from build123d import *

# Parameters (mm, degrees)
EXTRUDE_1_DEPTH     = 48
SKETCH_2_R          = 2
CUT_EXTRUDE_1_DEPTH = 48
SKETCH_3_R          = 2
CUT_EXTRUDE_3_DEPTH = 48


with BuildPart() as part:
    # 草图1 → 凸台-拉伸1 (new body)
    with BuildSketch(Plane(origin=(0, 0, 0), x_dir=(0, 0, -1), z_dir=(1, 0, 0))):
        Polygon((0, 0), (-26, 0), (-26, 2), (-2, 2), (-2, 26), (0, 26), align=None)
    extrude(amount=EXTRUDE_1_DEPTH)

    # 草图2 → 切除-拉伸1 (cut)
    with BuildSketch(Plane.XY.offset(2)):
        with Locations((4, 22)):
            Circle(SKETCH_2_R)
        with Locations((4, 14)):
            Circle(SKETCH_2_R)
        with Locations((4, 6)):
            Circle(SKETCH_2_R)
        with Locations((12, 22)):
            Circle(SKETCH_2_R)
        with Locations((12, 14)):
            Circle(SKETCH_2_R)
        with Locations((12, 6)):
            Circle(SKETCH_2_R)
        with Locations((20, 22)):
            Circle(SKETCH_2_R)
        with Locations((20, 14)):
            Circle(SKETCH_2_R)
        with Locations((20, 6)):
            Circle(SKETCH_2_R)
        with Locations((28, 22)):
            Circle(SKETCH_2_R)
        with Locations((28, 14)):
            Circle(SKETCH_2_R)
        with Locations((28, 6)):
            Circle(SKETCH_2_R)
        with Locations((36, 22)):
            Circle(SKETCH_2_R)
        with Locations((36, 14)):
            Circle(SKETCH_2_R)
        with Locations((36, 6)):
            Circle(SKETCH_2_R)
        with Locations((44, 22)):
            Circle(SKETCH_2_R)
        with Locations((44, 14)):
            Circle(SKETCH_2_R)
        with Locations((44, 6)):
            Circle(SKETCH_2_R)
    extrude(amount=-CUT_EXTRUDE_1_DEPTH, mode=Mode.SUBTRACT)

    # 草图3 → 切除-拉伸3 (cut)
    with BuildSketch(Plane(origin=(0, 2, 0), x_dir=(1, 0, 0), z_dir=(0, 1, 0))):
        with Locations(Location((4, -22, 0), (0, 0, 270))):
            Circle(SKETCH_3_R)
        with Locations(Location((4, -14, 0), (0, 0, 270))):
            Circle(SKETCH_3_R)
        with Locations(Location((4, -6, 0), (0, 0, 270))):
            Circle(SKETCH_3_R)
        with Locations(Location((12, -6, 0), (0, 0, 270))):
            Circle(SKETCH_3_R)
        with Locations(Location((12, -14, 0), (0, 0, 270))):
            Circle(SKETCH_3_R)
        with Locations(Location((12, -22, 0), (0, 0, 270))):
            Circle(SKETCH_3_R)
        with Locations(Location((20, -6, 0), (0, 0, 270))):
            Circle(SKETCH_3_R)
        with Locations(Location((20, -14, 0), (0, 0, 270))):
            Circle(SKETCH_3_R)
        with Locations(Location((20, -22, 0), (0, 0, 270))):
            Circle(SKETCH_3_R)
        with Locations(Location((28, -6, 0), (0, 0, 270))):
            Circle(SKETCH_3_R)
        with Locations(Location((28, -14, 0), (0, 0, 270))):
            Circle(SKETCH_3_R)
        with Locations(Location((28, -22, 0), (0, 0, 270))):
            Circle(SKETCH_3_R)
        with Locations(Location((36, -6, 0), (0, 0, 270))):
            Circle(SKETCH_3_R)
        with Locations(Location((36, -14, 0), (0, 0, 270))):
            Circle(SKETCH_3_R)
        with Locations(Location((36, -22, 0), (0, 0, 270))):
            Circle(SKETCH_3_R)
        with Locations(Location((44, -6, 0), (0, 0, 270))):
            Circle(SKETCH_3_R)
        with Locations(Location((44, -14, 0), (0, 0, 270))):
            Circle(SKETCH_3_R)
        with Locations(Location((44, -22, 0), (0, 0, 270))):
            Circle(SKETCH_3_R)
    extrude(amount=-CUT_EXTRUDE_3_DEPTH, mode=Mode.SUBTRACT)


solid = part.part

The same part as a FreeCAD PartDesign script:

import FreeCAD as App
import Part
import Sketcher

doc = App.newDocument("Part")
body = doc.addObject("PartDesign::Body", "Body")

# Sketch on YZ plane
sketch1 = body.newObject("Sketcher::SketchObject", "Sketch")
sketch1.AttachmentSupport = (doc.getObject("YZ_Plane"), [""])
sketch1.MapMode = "FlatFace"
sketch1.addGeometry(Part.LineSegment(App.Vector(0, 26, 0), App.Vector(0, 0, 0)), False)
sketch1.addGeometry(Part.LineSegment(App.Vector(0, 0, 0), App.Vector(26, 0, 0)), False)
sketch1.addGeometry(Part.LineSegment(App.Vector(26, 0, 0), App.Vector(26, 2, 0)), False)
sketch1.addGeometry(Part.LineSegment(App.Vector(26, 2, 0), App.Vector(2, 2, 0)), False)
sketch1.addGeometry(Part.LineSegment(App.Vector(2, 2, 0), App.Vector(2, 26, 0)), False)
sketch1.addGeometry(Part.LineSegment(App.Vector(2, 26, 0), App.Vector(0, 26, 0)), False)
sketch1.addConstraint(Sketcher.Constraint("Coincident", 0, 2, 1, 1))
sketch1.addConstraint(Sketcher.Constraint("Coincident", 1, 2, 2, 1))
sketch1.addConstraint(Sketcher.Constraint("Coincident", 2, 2, 3, 1))
sketch1.addConstraint(Sketcher.Constraint("Coincident", 3, 2, 4, 1))
sketch1.addConstraint(Sketcher.Constraint("Coincident", 4, 2, 5, 1))
sketch1.addConstraint(Sketcher.Constraint("Coincident", 5, 2, 0, 1))
sketch1.addConstraint(Sketcher.Constraint("Vertical", 0))
sketch1.addConstraint(Sketcher.Constraint("Horizontal", 1))
sketch1.addConstraint(Sketcher.Constraint("Vertical", 2))
sketch1.addConstraint(Sketcher.Constraint("Horizontal", 3))
sketch1.addConstraint(Sketcher.Constraint("Vertical", 4))
sketch1.addConstraint(Sketcher.Constraint("Horizontal", 5))
sketch1.addConstraint(Sketcher.Constraint("Coincident", 0, 2, -1, 1))
sketch1.addConstraint(Sketcher.Constraint("Equal", 1, 0))
sketch1.addConstraint(Sketcher.Constraint("Equal", 5, 2))
sketch1.addConstraint(Sketcher.Constraint("DistanceX", 1, 1, 1, 2, 26.0))
sketch1.addConstraint(Sketcher.Constraint("DistanceX", 3, 2, 3, 1, 24.0))
pad1 = body.newObject("PartDesign::Pad", "Pad")
pad1.Profile = sketch1
pad1.Length = 48

# Sketch on XY plane
sketch2 = body.newObject("Sketcher::SketchObject", "Sketch001")
sketch2.AttachmentSupport = (doc.getObject("XY_Plane"), [""])
sketch2.MapMode = "FlatFace"
sketch2.AttachmentOffset = App.Placement(App.Vector(0, 0, 2), App.Rotation())
sketch2.addGeometry(Part.Circle(App.Vector(4, 22, 0), App.Vector(0, 0, 1), 2), False)
sketch2.addGeometry(Part.Circle(App.Vector(4, 14, 0), App.Vector(0, 0, 1), 2), False)
sketch2.addGeometry(Part.Circle(App.Vector(4, 6, 0), App.Vector(0, 0, 1), 2), False)
sketch2.addGeometry(Part.Circle(App.Vector(12, 22, 0), App.Vector(0, 0, 1), 2), False)
sketch2.addGeometry(Part.Circle(App.Vector(12, 14, 0), App.Vector(0, 0, 1), 2), False)
sketch2.addGeometry(Part.Circle(App.Vector(12, 6, 0), App.Vector(0, 0, 1), 2), False)
sketch2.addGeometry(Part.Circle(App.Vector(20, 22, 0), App.Vector(0, 0, 1), 2), False)
sketch2.addGeometry(Part.Circle(App.Vector(20, 14, 0), App.Vector(0, 0, 1), 2), False)
sketch2.addGeometry(Part.Circle(App.Vector(20, 6, 0), App.Vector(0, 0, 1), 2), False)
sketch2.addGeometry(Part.Circle(App.Vector(28, 22, 0), App.Vector(0, 0, 1), 2), False)
sketch2.addGeometry(Part.Circle(App.Vector(28, 14, 0), App.Vector(0, 0, 1), 2), False)
sketch2.addGeometry(Part.Circle(App.Vector(28, 6, 0), App.Vector(0, 0, 1), 2), False)
sketch2.addGeometry(Part.Circle(App.Vector(36, 22, 0), App.Vector(0, 0, 1), 2), False)
sketch2.addGeometry(Part.Circle(App.Vector(36, 14, 0), App.Vector(0, 0, 1), 2), False)
sketch2.addGeometry(Part.Circle(App.Vector(36, 6, 0), App.Vector(0, 0, 1), 2), False)
sketch2.addGeometry(Part.Circle(App.Vector(44, 22, 0), App.Vector(0, 0, 1), 2), False)
sketch2.addGeometry(Part.Circle(App.Vector(44, 14, 0), App.Vector(0, 0, 1), 2), False)
sketch2.addGeometry(Part.Circle(App.Vector(44, 6, 0), App.Vector(0, 0, 1), 2), False)
sketch2.addConstraint(Sketcher.Constraint("Equal", 0, 1))
sketch2.addConstraint(Sketcher.Constraint("Equal", 1, 2))
sketch2.addConstraint(Sketcher.Constraint("Equal", 2, 3))
sketch2.addConstraint(Sketcher.Constraint("Equal", 3, 4))
sketch2.addConstraint(Sketcher.Constraint("Equal", 4, 5))
sketch2.addConstraint(Sketcher.Constraint("Equal", 5, 6))
sketch2.addConstraint(Sketcher.Constraint("Equal", 6, 7))
sketch2.addConstraint(Sketcher.Constraint("Equal", 7, 8))
sketch2.addConstraint(Sketcher.Constraint("Equal", 8, 9))
sketch2.addConstraint(Sketcher.Constraint("Equal", 9, 10))
sketch2.addConstraint(Sketcher.Constraint("Equal", 10, 11))
sketch2.addConstraint(Sketcher.Constraint("Equal", 11, 12))
sketch2.addConstraint(Sketcher.Constraint("Equal", 12, 13))
sketch2.addConstraint(Sketcher.Constraint("Equal", 13, 14))
sketch2.addConstraint(Sketcher.Constraint("Equal", 14, 15))
sketch2.addConstraint(Sketcher.Constraint("Equal", 15, 16))
sketch2.addConstraint(Sketcher.Constraint("Equal", 16, 17))
sketch2.addConstraint(Sketcher.Constraint("Horizontal", 0, 3, 3, 3))
sketch2.addConstraint(Sketcher.Constraint("Horizontal", 1, 3, 4, 3))
sketch2.addConstraint(Sketcher.Constraint("Horizontal", 2, 3, 5, 3))
sketch2.addConstraint(Sketcher.Constraint("Horizontal", 3, 3, 6, 3))
sketch2.addConstraint(Sketcher.Constraint("Horizontal", 4, 3, 7, 3))
sketch2.addConstraint(Sketcher.Constraint("Horizontal", 5, 3, 8, 3))
sketch2.addConstraint(Sketcher.Constraint("Horizontal", 6, 3, 9, 3))
sketch2.addConstraint(Sketcher.Constraint("Horizontal", 7, 3, 10, 3))
sketch2.addConstraint(Sketcher.Constraint("Horizontal", 8, 3, 11, 3))
sketch2.addConstraint(Sketcher.Constraint("Horizontal", 9, 3, 12, 3))
sketch2.addConstraint(Sketcher.Constraint("Horizontal", 10, 3, 13, 3))
sketch2.addConstraint(Sketcher.Constraint("Horizontal", 11, 3, 14, 3))
sketch2.addConstraint(Sketcher.Constraint("Horizontal", 12, 3, 15, 3))
sketch2.addConstraint(Sketcher.Constraint("Horizontal", 13, 3, 16, 3))
sketch2.addConstraint(Sketcher.Constraint("Horizontal", 14, 3, 17, 3))
sketch2.addConstraint(Sketcher.Constraint("Vertical", 0, 3, 1, 3))
sketch2.addConstraint(Sketcher.Constraint("Vertical", 1, 3, 2, 3))
sketch2.addConstraint(Sketcher.Constraint("Vertical", 3, 3, 4, 3))
sketch2.addConstraint(Sketcher.Constraint("Vertical", 4, 3, 5, 3))
sketch2.addConstraint(Sketcher.Constraint("Vertical", 6, 3, 7, 3))
sketch2.addConstraint(Sketcher.Constraint("Vertical", 7, 3, 8, 3))
sketch2.addConstraint(Sketcher.Constraint("Vertical", 9, 3, 10, 3))
sketch2.addConstraint(Sketcher.Constraint("Vertical", 10, 3, 11, 3))
sketch2.addConstraint(Sketcher.Constraint("Vertical", 12, 3, 13, 3))
sketch2.addConstraint(Sketcher.Constraint("Vertical", 13, 3, 14, 3))
sketch2.addConstraint(Sketcher.Constraint("Vertical", 15, 3, 16, 3))
sketch2.addConstraint(Sketcher.Constraint("Vertical", 16, 3, 17, 3))
sketch2.addConstraint(Sketcher.Constraint("Diameter", 0, 4.0))
sketch2.addConstraint(Sketcher.Constraint("DistanceX", -1, 1, 0, 3, 4.0))
sketch2.addConstraint(Sketcher.Constraint("DistanceY", -1, 1, 0, 3, 22.0))
sketch2.addConstraint(Sketcher.Constraint("DistanceY", -1, 1, 1, 3, 14.0))
sketch2.addConstraint(Sketcher.Constraint("DistanceY", -1, 1, 2, 3, 6.0))
sketch2.addConstraint(Sketcher.Constraint("DistanceX", -1, 1, 3, 3, 12.0))
sketch2.addConstraint(Sketcher.Constraint("DistanceX", -1, 1, 6, 3, 20.0))
sketch2.addConstraint(Sketcher.Constraint("DistanceX", -1, 1, 9, 3, 28.0))
sketch2.addConstraint(Sketcher.Constraint("DistanceX", -1, 1, 12, 3, 36.0))
sketch2.addConstraint(Sketcher.Constraint("DistanceX", -1, 1, 15, 3, 44.0))
pocket1 = body.newObject("PartDesign::Pocket", "Pocket")
pocket1.Profile = sketch2
pocket1.Length = 48

# Sketch on XZ plane
sketch3 = body.newObject("Sketcher::SketchObject", "Sketch002")
sketch3.AttachmentSupport = (doc.getObject("XZ_Plane"), [""])
sketch3.MapMode = "FlatFace"
sketch3.AttachmentOffset = App.Placement(App.Vector(0, 0, -2), App.Rotation())
sketch3.addGeometry(Part.Circle(App.Vector(4, 22, 0), App.Vector(0, 0, 1), 2), False)
sketch3.addGeometry(Part.Circle(App.Vector(4, 14, 0), App.Vector(0, 0, 1), 2), False)
sketch3.addGeometry(Part.Circle(App.Vector(4, 6, 0), App.Vector(0, 0, 1), 2), False)
sketch3.addGeometry(Part.Circle(App.Vector(12, 6, 0), App.Vector(0, 0, 1), 2), False)
sketch3.addGeometry(Part.Circle(App.Vector(12, 14, 0), App.Vector(0, 0, 1), 2), False)
sketch3.addGeometry(Part.Circle(App.Vector(12, 22, 0), App.Vector(0, 0, 1), 2), False)
sketch3.addGeometry(Part.Circle(App.Vector(20, 6, 0), App.Vector(0, 0, 1), 2), False)
sketch3.addGeometry(Part.Circle(App.Vector(20, 14, 0), App.Vector(0, 0, 1), 2), False)
sketch3.addGeometry(Part.Circle(App.Vector(20, 22, 0), App.Vector(0, 0, 1), 2), False)
sketch3.addGeometry(Part.Circle(App.Vector(28, 6, 0), App.Vector(0, 0, 1), 2), False)
sketch3.addGeometry(Part.Circle(App.Vector(28, 14, 0), App.Vector(0, 0, 1), 2), False)
sketch3.addGeometry(Part.Circle(App.Vector(28, 22, 0), App.Vector(0, 0, 1), 2), False)
sketch3.addGeometry(Part.Circle(App.Vector(36, 6, 0), App.Vector(0, 0, 1), 2), False)
sketch3.addGeometry(Part.Circle(App.Vector(36, 14, 0), App.Vector(0, 0, 1), 2), False)
sketch3.addGeometry(Part.Circle(App.Vector(36, 22, 0), App.Vector(0, 0, 1), 2), False)
sketch3.addGeometry(Part.Circle(App.Vector(44, 6, 0), App.Vector(0, 0, 1), 2), False)
sketch3.addGeometry(Part.Circle(App.Vector(44, 14, 0), App.Vector(0, 0, 1), 2), False)
sketch3.addGeometry(Part.Circle(App.Vector(44, 22, 0), App.Vector(0, 0, 1), 2), False)
sketch3.addConstraint(Sketcher.Constraint("Equal", 0, 1))
sketch3.addConstraint(Sketcher.Constraint("Equal", 1, 2))
sketch3.addConstraint(Sketcher.Constraint("Equal", 2, 3))
sketch3.addConstraint(Sketcher.Constraint("Equal", 3, 4))
sketch3.addConstraint(Sketcher.Constraint("Equal", 4, 5))
sketch3.addConstraint(Sketcher.Constraint("Equal", 5, 6))
sketch3.addConstraint(Sketcher.Constraint("Equal", 6, 7))
sketch3.addConstraint(Sketcher.Constraint("Equal", 7, 8))
sketch3.addConstraint(Sketcher.Constraint("Equal", 8, 9))
sketch3.addConstraint(Sketcher.Constraint("Equal", 9, 10))
sketch3.addConstraint(Sketcher.Constraint("Equal", 10, 11))
sketch3.addConstraint(Sketcher.Constraint("Equal", 11, 12))
sketch3.addConstraint(Sketcher.Constraint("Equal", 12, 13))
sketch3.addConstraint(Sketcher.Constraint("Equal", 13, 14))
sketch3.addConstraint(Sketcher.Constraint("Equal", 14, 15))
sketch3.addConstraint(Sketcher.Constraint("Equal", 15, 16))
sketch3.addConstraint(Sketcher.Constraint("Equal", 16, 17))
sketch3.addConstraint(Sketcher.Constraint("Horizontal", 2, 3, 3, 3))
sketch3.addConstraint(Sketcher.Constraint("Horizontal", 1, 3, 4, 3))
sketch3.addConstraint(Sketcher.Constraint("Horizontal", 0, 3, 5, 3))
sketch3.addConstraint(Sketcher.Constraint("Horizontal", 3, 3, 6, 3))
sketch3.addConstraint(Sketcher.Constraint("Horizontal", 4, 3, 7, 3))
sketch3.addConstraint(Sketcher.Constraint("Horizontal", 5, 3, 8, 3))
sketch3.addConstraint(Sketcher.Constraint("Horizontal", 6, 3, 9, 3))
sketch3.addConstraint(Sketcher.Constraint("Horizontal", 7, 3, 10, 3))
sketch3.addConstraint(Sketcher.Constraint("Horizontal", 8, 3, 11, 3))
sketch3.addConstraint(Sketcher.Constraint("Horizontal", 9, 3, 12, 3))
sketch3.addConstraint(Sketcher.Constraint("Horizontal", 10, 3, 13, 3))
sketch3.addConstraint(Sketcher.Constraint("Horizontal", 11, 3, 14, 3))
sketch3.addConstraint(Sketcher.Constraint("Horizontal", 12, 3, 15, 3))
sketch3.addConstraint(Sketcher.Constraint("Horizontal", 13, 3, 16, 3))
sketch3.addConstraint(Sketcher.Constraint("Horizontal", 14, 3, 17, 3))
sketch3.addConstraint(Sketcher.Constraint("Vertical", 0, 3, 1, 3))
sketch3.addConstraint(Sketcher.Constraint("Vertical", 1, 3, 2, 3))
sketch3.addConstraint(Sketcher.Constraint("Vertical", 3, 3, 4, 3))
sketch3.addConstraint(Sketcher.Constraint("Vertical", 4, 3, 5, 3))
sketch3.addConstraint(Sketcher.Constraint("Vertical", 6, 3, 7, 3))
sketch3.addConstraint(Sketcher.Constraint("Vertical", 7, 3, 8, 3))
sketch3.addConstraint(Sketcher.Constraint("Vertical", 9, 3, 10, 3))
sketch3.addConstraint(Sketcher.Constraint("Vertical", 10, 3, 11, 3))
sketch3.addConstraint(Sketcher.Constraint("Vertical", 12, 3, 13, 3))
sketch3.addConstraint(Sketcher.Constraint("Vertical", 13, 3, 14, 3))
sketch3.addConstraint(Sketcher.Constraint("Vertical", 15, 3, 16, 3))
sketch3.addConstraint(Sketcher.Constraint("Vertical", 16, 3, 17, 3))
sketch3.addConstraint(Sketcher.Constraint("Diameter", 0, 4.0))
sketch3.addConstraint(Sketcher.Constraint("DistanceX", -1, 1, 0, 3, 4.0))
sketch3.addConstraint(Sketcher.Constraint("DistanceY", -1, 1, 0, 3, 22.0))
sketch3.addConstraint(Sketcher.Constraint("DistanceY", -1, 1, 1, 3, 14.0))
sketch3.addConstraint(Sketcher.Constraint("DistanceY", -1, 1, 2, 3, 6.0))
sketch3.addConstraint(Sketcher.Constraint("DistanceX", -1, 1, 3, 3, 12.0))
sketch3.addConstraint(Sketcher.Constraint("DistanceX", -1, 1, 6, 3, 20.0))
sketch3.addConstraint(Sketcher.Constraint("DistanceX", -1, 1, 9, 3, 28.0))
sketch3.addConstraint(Sketcher.Constraint("DistanceX", -1, 1, 12, 3, 36.0))
sketch3.addConstraint(Sketcher.Constraint("DistanceX", -1, 1, 15, 3, 44.0))
pocket2 = body.newObject("PartDesign::Pocket", "Pocket001")
pocket2.Profile = sketch3
pocket2.Length = 48
pocket2.Reversed = True

doc.recompute()
